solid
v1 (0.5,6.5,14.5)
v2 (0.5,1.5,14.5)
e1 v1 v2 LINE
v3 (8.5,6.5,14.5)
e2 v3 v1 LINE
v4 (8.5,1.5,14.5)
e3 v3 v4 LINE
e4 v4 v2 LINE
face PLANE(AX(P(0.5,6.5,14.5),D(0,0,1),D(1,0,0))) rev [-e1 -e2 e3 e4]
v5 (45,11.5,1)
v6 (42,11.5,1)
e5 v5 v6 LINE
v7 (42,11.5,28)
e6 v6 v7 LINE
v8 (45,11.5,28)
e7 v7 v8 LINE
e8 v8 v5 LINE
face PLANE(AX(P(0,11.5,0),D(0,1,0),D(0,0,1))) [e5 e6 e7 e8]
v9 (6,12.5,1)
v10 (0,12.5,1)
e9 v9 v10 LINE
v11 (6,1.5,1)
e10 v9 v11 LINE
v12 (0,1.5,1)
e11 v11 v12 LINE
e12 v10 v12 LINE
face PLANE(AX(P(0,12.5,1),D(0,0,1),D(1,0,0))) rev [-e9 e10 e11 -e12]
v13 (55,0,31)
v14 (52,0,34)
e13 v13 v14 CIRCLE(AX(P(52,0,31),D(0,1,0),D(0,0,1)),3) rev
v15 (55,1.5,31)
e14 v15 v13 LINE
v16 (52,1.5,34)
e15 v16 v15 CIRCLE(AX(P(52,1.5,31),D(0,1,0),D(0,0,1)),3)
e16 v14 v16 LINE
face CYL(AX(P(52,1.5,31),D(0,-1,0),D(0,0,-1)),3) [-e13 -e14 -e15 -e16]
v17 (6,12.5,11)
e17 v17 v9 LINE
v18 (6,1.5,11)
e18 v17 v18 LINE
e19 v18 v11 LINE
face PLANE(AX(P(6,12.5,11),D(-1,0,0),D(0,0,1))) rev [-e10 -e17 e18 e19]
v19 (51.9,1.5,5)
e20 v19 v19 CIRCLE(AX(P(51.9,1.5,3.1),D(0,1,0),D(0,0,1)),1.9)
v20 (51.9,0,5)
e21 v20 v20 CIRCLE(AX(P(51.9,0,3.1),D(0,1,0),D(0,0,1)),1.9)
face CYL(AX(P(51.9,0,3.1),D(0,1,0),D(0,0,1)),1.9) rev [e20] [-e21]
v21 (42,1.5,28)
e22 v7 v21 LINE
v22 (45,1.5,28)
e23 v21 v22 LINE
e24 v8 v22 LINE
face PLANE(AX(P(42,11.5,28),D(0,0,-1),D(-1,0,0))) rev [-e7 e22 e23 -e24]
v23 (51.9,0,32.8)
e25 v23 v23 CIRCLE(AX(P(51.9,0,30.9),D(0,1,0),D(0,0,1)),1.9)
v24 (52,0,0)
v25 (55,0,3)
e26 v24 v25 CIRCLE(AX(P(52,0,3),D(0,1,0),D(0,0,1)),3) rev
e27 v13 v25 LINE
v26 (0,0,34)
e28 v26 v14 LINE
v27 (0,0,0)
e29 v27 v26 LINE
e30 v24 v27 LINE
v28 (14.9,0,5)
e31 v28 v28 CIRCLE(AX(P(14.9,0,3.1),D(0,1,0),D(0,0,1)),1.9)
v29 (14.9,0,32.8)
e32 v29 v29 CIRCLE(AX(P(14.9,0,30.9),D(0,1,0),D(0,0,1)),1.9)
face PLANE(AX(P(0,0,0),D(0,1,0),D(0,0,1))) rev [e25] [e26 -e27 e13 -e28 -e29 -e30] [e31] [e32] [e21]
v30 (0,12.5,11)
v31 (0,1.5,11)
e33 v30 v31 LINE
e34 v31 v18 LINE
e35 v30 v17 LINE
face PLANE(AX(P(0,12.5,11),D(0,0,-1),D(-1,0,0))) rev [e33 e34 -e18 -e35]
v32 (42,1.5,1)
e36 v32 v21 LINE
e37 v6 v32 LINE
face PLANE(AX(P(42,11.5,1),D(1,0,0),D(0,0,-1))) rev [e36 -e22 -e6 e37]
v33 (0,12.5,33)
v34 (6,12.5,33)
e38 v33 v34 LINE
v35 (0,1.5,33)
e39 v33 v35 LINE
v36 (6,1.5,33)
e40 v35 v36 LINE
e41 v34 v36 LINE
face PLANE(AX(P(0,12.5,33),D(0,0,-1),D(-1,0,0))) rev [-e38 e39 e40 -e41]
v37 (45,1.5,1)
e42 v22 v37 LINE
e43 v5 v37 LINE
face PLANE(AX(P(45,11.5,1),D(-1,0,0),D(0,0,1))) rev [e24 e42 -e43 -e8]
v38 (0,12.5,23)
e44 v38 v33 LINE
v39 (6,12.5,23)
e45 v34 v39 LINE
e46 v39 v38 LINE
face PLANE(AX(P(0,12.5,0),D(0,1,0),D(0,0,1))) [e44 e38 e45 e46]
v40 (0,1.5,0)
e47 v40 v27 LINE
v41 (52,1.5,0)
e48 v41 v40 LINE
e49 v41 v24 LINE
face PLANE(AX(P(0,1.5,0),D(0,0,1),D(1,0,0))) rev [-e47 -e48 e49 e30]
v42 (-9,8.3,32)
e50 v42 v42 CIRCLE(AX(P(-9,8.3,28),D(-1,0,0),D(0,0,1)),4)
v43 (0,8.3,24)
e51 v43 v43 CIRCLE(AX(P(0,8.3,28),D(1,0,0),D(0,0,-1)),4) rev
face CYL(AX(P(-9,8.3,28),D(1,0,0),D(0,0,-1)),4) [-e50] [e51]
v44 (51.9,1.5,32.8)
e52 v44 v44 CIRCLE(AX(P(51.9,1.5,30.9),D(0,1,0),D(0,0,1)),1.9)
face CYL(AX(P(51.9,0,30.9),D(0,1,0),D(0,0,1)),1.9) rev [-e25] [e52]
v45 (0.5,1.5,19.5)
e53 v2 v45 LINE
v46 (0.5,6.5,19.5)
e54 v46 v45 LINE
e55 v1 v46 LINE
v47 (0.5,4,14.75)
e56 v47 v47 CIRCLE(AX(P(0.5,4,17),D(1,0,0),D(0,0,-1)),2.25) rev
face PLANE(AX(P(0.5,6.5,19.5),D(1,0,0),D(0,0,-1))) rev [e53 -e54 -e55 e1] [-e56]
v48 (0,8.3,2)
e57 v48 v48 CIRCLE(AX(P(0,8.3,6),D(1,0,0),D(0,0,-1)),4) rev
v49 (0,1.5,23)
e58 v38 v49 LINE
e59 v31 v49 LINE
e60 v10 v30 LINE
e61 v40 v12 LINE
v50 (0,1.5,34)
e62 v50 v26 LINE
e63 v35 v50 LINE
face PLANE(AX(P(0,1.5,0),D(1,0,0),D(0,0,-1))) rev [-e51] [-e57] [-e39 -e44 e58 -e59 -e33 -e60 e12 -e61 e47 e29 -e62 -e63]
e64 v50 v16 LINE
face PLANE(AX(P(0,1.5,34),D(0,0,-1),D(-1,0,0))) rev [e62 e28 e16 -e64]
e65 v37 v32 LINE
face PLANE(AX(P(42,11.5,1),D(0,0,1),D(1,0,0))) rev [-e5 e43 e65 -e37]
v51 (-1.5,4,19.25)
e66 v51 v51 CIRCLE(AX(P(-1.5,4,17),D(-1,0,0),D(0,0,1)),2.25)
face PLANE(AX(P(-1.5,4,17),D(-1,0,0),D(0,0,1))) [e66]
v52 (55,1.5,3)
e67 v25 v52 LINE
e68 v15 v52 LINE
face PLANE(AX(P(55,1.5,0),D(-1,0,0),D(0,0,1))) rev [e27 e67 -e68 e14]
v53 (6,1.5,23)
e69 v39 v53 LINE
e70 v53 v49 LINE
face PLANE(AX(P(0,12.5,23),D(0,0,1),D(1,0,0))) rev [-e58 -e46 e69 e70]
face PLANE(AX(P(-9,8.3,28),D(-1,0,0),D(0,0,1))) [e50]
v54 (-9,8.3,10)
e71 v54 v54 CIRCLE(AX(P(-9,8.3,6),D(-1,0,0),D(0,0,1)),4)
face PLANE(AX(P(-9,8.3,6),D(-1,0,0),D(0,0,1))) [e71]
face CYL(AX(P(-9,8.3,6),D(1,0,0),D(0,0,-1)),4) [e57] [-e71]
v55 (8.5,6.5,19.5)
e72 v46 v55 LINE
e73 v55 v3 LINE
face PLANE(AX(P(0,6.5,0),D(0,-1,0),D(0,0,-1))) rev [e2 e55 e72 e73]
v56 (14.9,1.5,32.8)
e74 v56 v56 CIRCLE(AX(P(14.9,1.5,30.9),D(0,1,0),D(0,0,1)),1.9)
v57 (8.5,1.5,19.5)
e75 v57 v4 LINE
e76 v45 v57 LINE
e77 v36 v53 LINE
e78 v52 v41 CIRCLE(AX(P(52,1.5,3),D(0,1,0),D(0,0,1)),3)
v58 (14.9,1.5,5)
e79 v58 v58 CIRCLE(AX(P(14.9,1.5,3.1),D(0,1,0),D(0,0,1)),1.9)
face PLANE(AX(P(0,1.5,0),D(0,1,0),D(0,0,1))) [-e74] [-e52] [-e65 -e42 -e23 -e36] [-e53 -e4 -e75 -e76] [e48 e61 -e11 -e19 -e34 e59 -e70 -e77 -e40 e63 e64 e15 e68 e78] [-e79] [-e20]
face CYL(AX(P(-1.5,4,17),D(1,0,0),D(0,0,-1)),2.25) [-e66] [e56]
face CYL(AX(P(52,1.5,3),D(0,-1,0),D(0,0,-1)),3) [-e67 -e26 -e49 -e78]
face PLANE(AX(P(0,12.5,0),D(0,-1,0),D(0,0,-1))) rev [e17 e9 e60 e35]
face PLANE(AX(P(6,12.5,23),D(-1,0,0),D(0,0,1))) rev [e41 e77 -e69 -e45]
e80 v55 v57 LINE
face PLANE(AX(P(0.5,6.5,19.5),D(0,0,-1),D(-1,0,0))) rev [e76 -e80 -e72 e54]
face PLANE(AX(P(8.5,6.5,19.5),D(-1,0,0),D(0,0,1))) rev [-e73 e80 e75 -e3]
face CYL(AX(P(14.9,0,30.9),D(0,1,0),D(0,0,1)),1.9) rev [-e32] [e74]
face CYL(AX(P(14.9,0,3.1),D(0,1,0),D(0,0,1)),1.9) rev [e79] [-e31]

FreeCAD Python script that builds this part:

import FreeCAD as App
import Part
import Sketcher

V = App.Vector
Q = App.Units.Quantity


def edges_at(feature, points):
    """Names of the edges that pass closest to the given points."""
    edges = feature.Shape.Edges
    near = lambda p: min(range(len(edges)), key=lambda i: edges[i].distToShape(Part.Vertex(*p))[0])
    return sorted({f"Edge{near(p) + 1}" for p in points})


def add_polygon(sketch, points):
    """Adds a closed chain of lines whose ends are joined by coincident constraints."""
    first, n = sketch.GeometryCount, len(points)
    for a, b in zip(points, points[1:] + points[:1]):
        sketch.addGeometry(Part.LineSegment(App.Vector(*a, 0), App.Vector(*b, 0)), False)
    for i in range(n):
        sketch.addConstraint(Sketcher.Constraint("Coincident", first + i, 2, first + (i + 1) % n, 1))

doc = App.newDocument("Part")
params = doc.addObject("Spreadsheet::Sheet", "Params")
for row, (alias, value) in enumerate([
    ("sketch1_width", "55 mm"),
    ("sketch1_height", "34 mm"),
    ("pad1_length", "1.5 mm"),
    ("sketch2_diameter", "3.8 mm"),
    ("fillet_radius", "3 mm"),
    ("sketch3_width", "8 mm"),
    ("sketch3_height", "5 mm"),
    ("pad2_length", "5 mm"),
    ("sketch4_diameter", "4.5 mm"),
    ("pad3_length", "2 mm"),
    ("sketch5_width", "3 mm"),
    ("sketch5_height", "27 mm"),
    ("pad4_length", "10 mm"),
    ("sketch6_width", "6 mm"),
    ("sketch6_height", "10 mm"),
    ("pad5_length", "11 mm"),
    ("sketch7_diameter", "8 mm"),
    ("pad6_length", "9 mm"),
], start=1):
    params.set(f"A{row}", alias)
    params.set(f"B{row}", "=" + value)
    params.setAlias(f"B{row}", alias)

body = doc.addObject("PartDesign::Body", "Body")

# Sketch on XZ plane
sketch1 = body.newObject("Sketcher::SketchObject", "Sketch")
sketch1.AttachmentSupport = (doc.getObject("XZ_Plane"), [""])
sketch1.MapMode = "FlatFace"
add_polygon(sketch1, [(0, 0), (0, 34), (55, 34), (55, 0)])  # lines 0-3
sketch1.addConstraint([
    Sketcher.Constraint("Vertical", 0),
    Sketcher.Constraint("Horizontal", 1),
    Sketcher.Constraint("Vertical", 2),
    Sketcher.Constraint("Horizontal", 3),
    Sketcher.Constraint("Coincident", 3, 2, -1, 1),
    Sketcher.Constraint("DistanceX", 1, 1, 1, 2, Q("55 mm")),
    Sketcher.Constraint("DistanceY", 0, 1, 0, 2, Q("34 mm")),
])
sketch1.setExpression("Constraints[9]", "Params.sketch1_width")
sketch1.setExpression("Constraints[10]", "Params.sketch1_height")
pad1 = body.newObject("PartDesign::Pad", "Pad")
pad1.Profile = sketch1
pad1.setExpression("Length", "Params.pad1_length")
pad1.Reversed = True

# Sketch on XZ plane
sketch2 = body.newObject("Sketcher::SketchObject", "Sketch001")
sketch2.AttachmentSupport = (doc.getObject("XZ_Plane"), [""])
sketch2.MapMode = "FlatFace"
sketch2.AttachmentOffset = App.Placement(V(0, 0, -1.5), App.Rotation())
sketch2.addGeometry([
    Part.Circle(V(51.9, 30.9, 0), V(0, 0, 1), 1.9),
    Part.Circle(V(14.9, 30.9, 0), V(0, 0, 1), 1.9),
    Part.Circle(V(14.9, 3.1, 0), V(0, 0, 1), 1.9),
    Part.Circle(V(51.9, 3.1, 0), V(0, 0, 1), 1.9),
], False)
sketch2.addConstraint([
    Sketcher.Constraint("Equal", 0, 1),
    Sketcher.Constraint("Equal", 1, 2),
    Sketcher.Constraint("Equal", 2, 3),
    Sketcher.Constraint("Horizontal", 0, 3, 1, 3),
    Sketcher.Constraint("Horizontal", 2, 3, 3, 3),
    Sketcher.Constraint("Vertical", 1, 3, 2, 3),
    Sketcher.Constraint("Vertical", 0, 3, 3, 3),
    Sketcher.Constraint("Diameter", 0, Q("3.8 mm")),
    Sketcher.Constraint("DistanceX", 1, 3, 0, 3, Q("37 mm")),
    Sketcher.Constraint("DistanceX", -1, 1, 0, 3, Q("51.9 mm")),
    Sketcher.Constraint("DistanceY", -1, 1, 0, 3, Q("30.9 mm")),
    Sketcher.Constraint("DistanceY", -1, 1, 2, 3, Q("3.1 mm")),
])
sketch2.setExpression("Constraints[7]", "Params.sketch2_diameter")
pocket1 = body.newObject("PartDesign::Pocket", "Pocket")
pocket1.Profile = sketch2
pocket1.Type = "ThroughAll"
pocket1.Reversed = True
doc.recompute()

fillet = body.newObject("PartDesign::Fillet", "Fillet")
fillet.Base = (pocket1, edges_at(pocket1, [(55, 0.75, 0), (55, 0.75, 34)]))
fillet.setExpression("Radius", "Params.fillet_radius")

# Sketch on XZ plane
sketch3 = body.newObject("Sketcher::SketchObject", "Sketch002")
sketch3.AttachmentSupport = (doc.getObject("XZ_Plane"), [""])
sketch3.MapMode = "FlatFace"
sketch3.AttachmentOffset = App.Placement(V(0, 0, -1.5), App.Rotation())
add_polygon(sketch3, [(0, 14), (0, 20), (8, 20), (8, 14)])  # lines 0-3
sketch3.addConstraint([
    Sketcher.Constraint("Vertical", 0),
    Sketcher.Constraint("Horizontal", 1),
    Sketcher.Constraint("Vertical", 2),
    Sketcher.Constraint("Horizontal", 3),
    Sketcher.Constraint("DistanceX", 1, 1, 1, 2, Q("8 mm")),
    Sketcher.Constraint("DistanceY", 0, 1, 0, 2, Q("5 mm")),
    Sketcher.Constraint("DistanceX", -1, 1, 0, 2, Q("0.5 mm")),
    Sketcher.Constraint("DistanceY", -1, 1, 0, 2, Q("19.5 mm")),
])
sketch3.setExpression("Constraints[8]", "Params.sketch3_width")
sketch3.setExpression("Constraints[9]", "Params.sketch3_height")
pad2 = body.newObject("PartDesign::Pad", "Pad001")
pad2.Profile = sketch3
pad2.setExpression("Length", "Params.pad2_length")
pad2.Reversed = True

# Sketch on YZ plane
sketch4 = body.newObject("Sketcher::SketchObject", "Sketch003")
sketch4.AttachmentSupport = (doc.getObject("YZ_Plane"), [""])
sketch4.MapMode = "FlatFace"
sketch4.AttachmentOffset = App.Placement(V(0, 0, 0.5), App.Rotation())
sketch4.addGeometry(Part.Circle(V(4, 17, 0), V(0, 0, 1), 2.2), False)
sketch4.addConstraint([
    Sketcher.Constraint("Diameter", 0, Q("4.5 mm")),
    Sketcher.Constraint("DistanceX", -1, 1, 0, 3, Q("4 mm")),
    Sketcher.Constraint("DistanceY", -1, 1, 0, 3, Q("17 mm")),
])
sketch4.setExpression("Constraints[0]", "Params.sketch4_diameter")
pad3 = body.newObject("PartDesign::Pad", "Pad002")
pad3.Profile = sketch4
pad3.setExpression("Length", "Params.pad3_length")
pad3.Reversed = True

# Sketch on XZ plane
sketch5 = body.newObject("Sketcher::SketchObject", "Sketch004")
sketch5.AttachmentSupport = (doc.getObject("XZ_Plane"), [""])
sketch5.MapMode = "FlatFace"
sketch5.AttachmentOffset = App.Placement(V(0, 0, -1.5), App.Rotation())
add_polygon(sketch5, [(42, 1), (42, 28), (45, 28), (45, 1)])  # lines 0-3
sketch5.addConstraint([
    Sketcher.Constraint("Vertical", 0),
    Sketcher.Constraint("Horizontal", 1),
    Sketcher.Constraint("Vertical", 2),
    Sketcher.Constraint("Horizontal", 3),
    Sketcher.Constraint("DistanceX", 1, 1, 1, 2, Q("3 mm")),
    Sketcher.Constraint("DistanceY", 0, 1, 0, 2, Q("27 mm")),
    Sketcher.Constraint("DistanceX", -1, 1, 0, 2, Q("42 mm")),
    Sketcher.Constraint("DistanceY", -1, 1, 0, 2, Q("28 mm")),
])
sketch5.setExpression("Constraints[8]", "Params.sketch5_width")
sketch5.setExpression("Constraints[9]", "Params.sketch5_height")
pad4 = body.newObject("PartDesign::Pad", "Pad003")
pad4.Profile = sketch5
pad4.setExpression("Length", "Params.pad4_length")
pad4.Reversed = True

# Sketch on XZ plane
sketch6 = body.newObject("Sketcher::SketchObject", "Sketch005")
sketch6.AttachmentSupport = (doc.getObject("XZ_Plane"), [""])
sketch6.MapMode = "FlatFace"
sketch6.AttachmentOffset = App.Placement(V(0, 0, -1.5), App.Rotation())
add_polygon(sketch6, [(0, 1), (0, 11), (6, 11), (6, 1)])  # lines 0-3
add_polygon(sketch6, [(0, 23), (0, 33), (6, 33), (6, 23)])  # lines 4-7
sketch6.addConstraint([
    Sketcher.Constraint("Vertical", 0),
    Sketcher.Constraint("Horizontal", 1),
    Sketcher.Constraint("Vertical", 2),
    Sketcher.Constraint("Horizontal", 3),
    Sketcher.Constraint("Vertical", 4),
    Sketcher.Constraint("Horizontal", 5),
    Sketcher.Constraint("Vertical", 6),
    Sketcher.Constraint("Horizontal", 7),
    Sketcher.Constraint("PointOnObject", 0, 2, -2),
    Sketcher.Constraint("PointOnObject", 4, 2, -2),
    Sketcher.Constraint("Vertical", 2, 2, 5, 2),
    Sketcher.Constraint("Equal", 2, 4),
    Sketcher.Constraint("DistanceX", 1, 1, 1, 2, Q("6 mm")),
    Sketcher.Constraint("DistanceY", 0, 1, 0, 2, Q("10 mm")),
    Sketcher.Constraint("DistanceY", -1, 1, 0, 2, Q("11 mm")),
    Sketcher.Constraint("DistanceY", -1, 1, 4, 2, Q("33 mm")),
])
sketch6.setExpression("Constraints[20]", "Params.sketch6_width")
sketch6.setExpression("Constraints[21]", "Params.sketch6_height")
pad5 = body.newObject("PartDesign::Pad", "Pad004")
pad5.Profile = sketch6
pad5.setExpression("Length", "Params.pad5_length")
pad5.Reversed = True

# Sketch on YZ plane
sketch7 = body.newObject("Sketcher::SketchObject", "Sketch006")
sketch7.AttachmentSupport = (doc.getObject("YZ_Plane"), [""])
sketch7.MapMode = "FlatFace"
sketch7.addGeometry([
    Part.Circle(V(8.3, 28, 0), V(0, 0, 1), 4),
    Part.Circle(V(8.3, 6, 0), V(0, 0, 1), 4),
], False)
sketch7.addConstraint([
    Sketcher.Constraint("Equal", 0, 1),
    Sketcher.Constraint("Vertical", 0, 3, 1, 3),
    Sketcher.Constraint("Diameter", 0, Q("8 mm")),
    Sketcher.Constraint("DistanceY", -1, 1, 0, 3, Q("28 mm")),
    Sketcher.Constraint("DistanceY", -1, 1, 1, 3, Q("6 mm")),
    Sketcher.Constraint("DistanceX", -1, 1, 0, 3, Q("8.3 mm")),
])
sketch7.setExpression("Constraints[2]", "Params.sketch7_diameter")
pad6 = body.newObject("PartDesign::Pad", "Pad005")
pad6.Profile = sketch7
pad6.setExpression("Length", "Params.pad6_length")
pad6.Reversed = True

doc.recompute()
